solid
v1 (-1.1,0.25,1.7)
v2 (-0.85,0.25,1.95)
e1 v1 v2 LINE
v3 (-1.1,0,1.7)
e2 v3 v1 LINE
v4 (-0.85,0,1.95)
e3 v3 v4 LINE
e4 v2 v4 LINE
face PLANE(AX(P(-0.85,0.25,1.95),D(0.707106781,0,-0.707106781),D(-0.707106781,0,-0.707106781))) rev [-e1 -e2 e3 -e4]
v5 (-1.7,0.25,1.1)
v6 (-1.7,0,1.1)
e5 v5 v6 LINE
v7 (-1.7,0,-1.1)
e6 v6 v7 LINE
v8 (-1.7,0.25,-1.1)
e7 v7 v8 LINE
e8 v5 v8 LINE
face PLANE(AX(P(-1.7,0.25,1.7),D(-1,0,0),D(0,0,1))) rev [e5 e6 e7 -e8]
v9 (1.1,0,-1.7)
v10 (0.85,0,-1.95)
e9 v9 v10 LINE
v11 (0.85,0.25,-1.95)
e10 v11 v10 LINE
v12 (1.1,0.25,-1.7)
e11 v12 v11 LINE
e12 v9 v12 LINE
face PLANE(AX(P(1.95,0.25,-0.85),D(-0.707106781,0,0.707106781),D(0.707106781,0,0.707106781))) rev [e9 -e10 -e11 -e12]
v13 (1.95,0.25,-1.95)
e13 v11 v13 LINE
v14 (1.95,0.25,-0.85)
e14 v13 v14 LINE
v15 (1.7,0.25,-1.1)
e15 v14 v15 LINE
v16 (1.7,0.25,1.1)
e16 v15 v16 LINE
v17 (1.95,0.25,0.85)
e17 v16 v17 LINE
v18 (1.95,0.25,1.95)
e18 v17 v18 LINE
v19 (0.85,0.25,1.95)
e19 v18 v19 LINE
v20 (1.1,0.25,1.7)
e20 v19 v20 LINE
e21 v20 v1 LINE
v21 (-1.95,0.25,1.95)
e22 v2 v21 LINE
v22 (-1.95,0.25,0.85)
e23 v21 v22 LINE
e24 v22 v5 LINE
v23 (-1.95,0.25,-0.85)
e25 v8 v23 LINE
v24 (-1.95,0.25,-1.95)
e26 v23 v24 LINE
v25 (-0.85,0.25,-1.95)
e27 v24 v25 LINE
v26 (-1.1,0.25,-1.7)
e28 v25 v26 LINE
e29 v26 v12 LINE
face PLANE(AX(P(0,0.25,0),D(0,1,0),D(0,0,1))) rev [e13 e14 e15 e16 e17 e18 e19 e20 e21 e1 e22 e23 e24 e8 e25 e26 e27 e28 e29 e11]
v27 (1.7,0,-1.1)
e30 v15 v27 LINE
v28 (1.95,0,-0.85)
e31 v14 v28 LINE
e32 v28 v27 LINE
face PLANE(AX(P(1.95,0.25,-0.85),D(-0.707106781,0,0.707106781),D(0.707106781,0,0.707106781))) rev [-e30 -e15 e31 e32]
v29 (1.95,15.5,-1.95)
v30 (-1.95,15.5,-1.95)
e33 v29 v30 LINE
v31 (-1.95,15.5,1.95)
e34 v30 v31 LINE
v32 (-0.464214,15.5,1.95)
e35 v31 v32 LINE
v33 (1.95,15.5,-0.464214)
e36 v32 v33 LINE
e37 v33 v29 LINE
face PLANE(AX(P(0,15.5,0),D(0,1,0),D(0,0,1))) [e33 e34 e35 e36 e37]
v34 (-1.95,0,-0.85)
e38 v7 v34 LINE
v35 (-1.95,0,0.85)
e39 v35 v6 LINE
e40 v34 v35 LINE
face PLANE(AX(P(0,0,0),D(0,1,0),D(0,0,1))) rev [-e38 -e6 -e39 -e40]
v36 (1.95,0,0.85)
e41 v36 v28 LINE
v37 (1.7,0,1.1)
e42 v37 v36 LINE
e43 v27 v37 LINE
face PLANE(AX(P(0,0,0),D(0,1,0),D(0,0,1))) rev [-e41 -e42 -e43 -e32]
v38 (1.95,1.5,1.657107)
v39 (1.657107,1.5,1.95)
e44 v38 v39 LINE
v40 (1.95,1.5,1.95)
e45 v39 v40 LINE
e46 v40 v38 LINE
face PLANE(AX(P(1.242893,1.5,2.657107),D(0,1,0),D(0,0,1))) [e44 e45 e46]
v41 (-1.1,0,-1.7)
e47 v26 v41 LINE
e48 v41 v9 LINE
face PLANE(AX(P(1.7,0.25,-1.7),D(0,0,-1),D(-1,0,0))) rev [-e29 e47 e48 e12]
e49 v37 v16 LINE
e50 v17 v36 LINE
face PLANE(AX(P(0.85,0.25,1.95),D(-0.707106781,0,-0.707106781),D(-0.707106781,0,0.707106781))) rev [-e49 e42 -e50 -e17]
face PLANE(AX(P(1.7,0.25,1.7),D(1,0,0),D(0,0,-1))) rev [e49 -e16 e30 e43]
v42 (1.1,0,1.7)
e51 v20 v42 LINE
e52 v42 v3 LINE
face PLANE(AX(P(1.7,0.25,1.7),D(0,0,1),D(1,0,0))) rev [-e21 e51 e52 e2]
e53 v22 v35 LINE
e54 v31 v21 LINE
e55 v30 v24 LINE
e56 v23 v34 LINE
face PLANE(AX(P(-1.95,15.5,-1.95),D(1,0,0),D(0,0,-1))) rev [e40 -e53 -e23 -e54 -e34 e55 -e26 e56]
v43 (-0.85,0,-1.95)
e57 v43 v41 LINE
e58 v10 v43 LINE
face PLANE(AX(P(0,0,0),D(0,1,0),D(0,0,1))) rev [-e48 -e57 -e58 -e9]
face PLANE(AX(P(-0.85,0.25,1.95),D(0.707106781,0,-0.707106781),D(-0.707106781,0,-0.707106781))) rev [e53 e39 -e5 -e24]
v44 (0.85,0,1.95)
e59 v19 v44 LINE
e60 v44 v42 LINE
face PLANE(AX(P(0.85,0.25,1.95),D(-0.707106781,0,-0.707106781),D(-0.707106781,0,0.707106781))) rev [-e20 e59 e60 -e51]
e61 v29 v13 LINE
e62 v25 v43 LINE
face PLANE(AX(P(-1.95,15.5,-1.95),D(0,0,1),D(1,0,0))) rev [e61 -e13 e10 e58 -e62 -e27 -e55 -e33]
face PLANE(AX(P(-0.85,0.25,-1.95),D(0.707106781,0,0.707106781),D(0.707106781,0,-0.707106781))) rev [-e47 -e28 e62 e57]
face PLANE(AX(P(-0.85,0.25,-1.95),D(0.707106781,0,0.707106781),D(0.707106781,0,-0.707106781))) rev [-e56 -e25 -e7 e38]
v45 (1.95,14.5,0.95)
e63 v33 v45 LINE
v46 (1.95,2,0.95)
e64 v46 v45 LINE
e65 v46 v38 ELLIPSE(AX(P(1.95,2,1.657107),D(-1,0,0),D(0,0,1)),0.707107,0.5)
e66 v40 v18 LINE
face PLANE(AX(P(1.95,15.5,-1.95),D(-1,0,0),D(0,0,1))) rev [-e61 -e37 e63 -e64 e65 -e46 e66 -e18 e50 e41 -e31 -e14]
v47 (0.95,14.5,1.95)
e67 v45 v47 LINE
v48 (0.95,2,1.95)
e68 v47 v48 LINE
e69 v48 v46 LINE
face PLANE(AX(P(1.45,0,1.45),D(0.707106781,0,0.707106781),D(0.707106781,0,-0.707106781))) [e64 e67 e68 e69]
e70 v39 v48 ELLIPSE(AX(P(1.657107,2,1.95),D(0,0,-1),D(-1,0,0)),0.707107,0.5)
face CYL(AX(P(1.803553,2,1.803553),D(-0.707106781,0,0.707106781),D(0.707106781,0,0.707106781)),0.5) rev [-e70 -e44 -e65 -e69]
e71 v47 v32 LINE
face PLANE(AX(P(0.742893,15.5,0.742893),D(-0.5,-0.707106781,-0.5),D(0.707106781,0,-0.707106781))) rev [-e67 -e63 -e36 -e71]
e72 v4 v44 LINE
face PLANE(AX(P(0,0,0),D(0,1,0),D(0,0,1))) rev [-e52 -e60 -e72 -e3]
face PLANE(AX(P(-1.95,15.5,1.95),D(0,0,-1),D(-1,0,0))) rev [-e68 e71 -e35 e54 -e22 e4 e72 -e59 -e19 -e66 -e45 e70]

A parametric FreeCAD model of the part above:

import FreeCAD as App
import Part
import Sketcher
from FreeCAD import Vector
Q = App.Units.Quantity


def edges_at(feature, points):
    """Names of the edges that pass closest to the given points."""
    edges = feature.Shape.Edges
    near = lambda p: min(range(len(edges)), key=lambda i: edges[i].distToShape(Part.Vertex(*p))[0])
    return sorted({f"Edge{near(p) + 1}" for p in points})


def add_polygon(sketch, points):
    """Adds a closed chain of lines whose ends are joined by coincident constraints."""
    first, n = sketch.GeometryCount, len(points)
    for a, b in zip(points, points[1:] + points[:1]):
        sketch.addGeometry(Part.LineSegment(App.Vector(*a, 0), App.Vector(*b, 0)), False)
    for i in range(n):
        sketch.addConstraint(Sketcher.Constraint("Coincident", first + i, 2, first + (i + 1) % n, 1))

doc = App.newDocument("Part")
body = doc.addObject("PartDesign::Body", "Body")

sketch1 = doc.addObject("Sketcher::SketchObject", "Sketch")
body.addObject(sketch1)
sketch1.AttachmentSupport = (doc.XZ_Plane, [""])
sketch1.MapMode = "FlatFace"
add_polygon(sketch1, [(-1.9, -1.9), (-1.9, 1.9), (1.9, 1.9), (1.9, -1.9)])
sketch1.addConstraint([
    Sketcher.Constraint("Vertical", 0),
    Sketcher.Constraint("Horizontal", 1),
    Sketcher.Constraint("Vertical", 2),
    Sketcher.Constraint("Horizontal", 3),
    Sketcher.Constraint("Symmetric", 0, 2, 2, 2, -1, 1),
    Sketcher.Constraint("Equal", 3, 0),
    Sketcher.Constraint("DistanceX", 1, 1, 1, 2, Q("3.9 mm")),
])
pad1 = doc.addObject("PartDesign::Pad", "Pad")
body.addObject(pad1)
pad1.Profile = sketch1
pad1.Length = 15.5
pad1.Reversed = True

sketch2 = doc.addObject("Sketcher::SketchObject", "Sketch001")
body.addObject(sketch2)
sketch2.Placement = App.Placement(Vector(1.45, 0, 1.45), App.Rotation(Vector(0.707106781, 0, -0.707106781), Vector(0, 0.999999999, 0), Vector(0.707106781, 0, 0.707106781), "ZXY"))
add_polygon(sketch2, [(-1, 15.5), (-1, 1.5), (1, 1.5), (1, 15.5)])
sketch2.addConstraint([
    Sketcher.Constraint("Vertical", 0),
    Sketcher.Constraint("Horizontal", 1),
    Sketcher.Constraint("Vertical", 2),
    Sketcher.Constraint("Horizontal", 3),
    Sketcher.Constraint("DistanceX", 1, 1, 1, 2, Q("2 mm")),
    Sketcher.Constraint("DistanceY", 0, 2, 0, 1, Q("14 mm")),
    Sketcher.Constraint("DistanceX", 0, 2, -1, 1, Q("1 mm")),
    Sketcher.Constraint("DistanceY", -1, 1, 0, 2, Q("1.5 mm")),
])
pocket1 = doc.addObject("PartDesign::Pocket", "Pocket")
body.addObject(pocket1)
pocket1.Profile = sketch2
pocket1.Type = "ThroughAll"
pocket1.Reversed = True

sketch3 = doc.addObject("Sketcher::SketchObject", "Sketch002")
body.addObject(sketch3)
sketch3.AttachmentSupport = (doc.XZ_Plane, [""])
sketch3.MapMode = "FlatFace"
add_polygon(sketch3, [(-1.7, 1.7), (-1.7, -1.7), (1.7, -1.7), (1.7, 1.7)])
sketch3.addConstraint([
    Sketcher.Constraint("Vertical", 0),
    Sketcher.Constraint("Horizontal", 1),
    Sketcher.Constraint("Vertical", 2),
    Sketcher.Constraint("Horizontal", 3),
    Sketcher.Constraint("Symmetric", 0, 2, 2, 2, -1, 1),
    Sketcher.Constraint("Equal", 3, 0),
    Sketcher.Constraint("DistanceX", 1, 1, 1, 2, Q("3.4 mm")),
])
pocket2 = doc.addObject("PartDesign::Pocket", "Pocket001")
body.addObject(pocket2)
pocket2.Profile = sketch3
pocket2.Length = 0.25

sketch4 = doc.addObject("Sketcher::SketchObject", "Sketch003")
body.addObject(sketch4)
sketch4.AttachmentSupport = (doc.XZ_Plane, [""])
sketch4.MapMode = "FlatFace"
add_polygon(sketch4, [(1.9, 1.9), (0.8, 1.9), (1.9, 0.8)])
add_polygon(sketch4, [(1.9, -1.9), (1.9, -0.8), (0.8, -1.9)])
add_polygon(sketch4, [(-0.8, 1.9), (-1.9, 1.9), (-1.9, 0.8)])
add_polygon(sketch4, [(-1.9, -1.9), (-0.8, -1.9), (-1.9, -0.8)])
sketch4.addConstraint([
    Sketcher.Constraint("Horizontal", 0),
    Sketcher.Constraint("Vertical", 2),
    Sketcher.Constraint("Vertical", 3),
    Sketcher.Constraint("Horizontal", 5),
    Sketcher.Constraint("Horizontal", 6),
    Sketcher.Constraint("Vertical", 7),
    Sketcher.Constraint("Horizontal", 9),
    Sketcher.Constraint("Vertical", 11),
    Sketcher.Constraint("Symmetric", 5, 2, 6, 2, -1, 1),
    Sketcher.Constraint("Symmetric", 0, 2, 9, 2, -1, 1),
    Sketcher.Constraint("Symmetric", 1, 2, 10, 2, -1, 1),
    Sketcher.Constraint("Symmetric", 2, 2, 6, 2, -2),
    Sketcher.Constraint("Perpendicular", 1, 4),
    Sketcher.Constraint("Parallel", 4, 8),
    Sketcher.Constraint("Horizontal", 1, 2, 7, 2),
    Sketcher.Constraint("Horizontal", 3, 2, 10, 2),
    Sketcher.Constraint("Vertical", 0, 2, 4, 2),
    Sketcher.Constraint("DistanceX", 0, 2, 0, 1, Q("1.1 mm")),
    Sketcher.Constraint("DistanceY", 3, 2, 1, 2, Q("1.7 mm")),
    Sketcher.Constraint("DistanceX", 6, 2, 0, 2, Q("2.8 mm")),
])
pocket3 = doc.addObject("PartDesign::Pocket", "Pocket002")
body.addObject(pocket3)
pocket3.Profile = sketch4
pocket3.Length = 0.25
doc.recompute()

chamfer = doc.addObject("PartDesign::Chamfer", "Chamfer")
body.addObject(chamfer)
chamfer.Base = (pocket3, edges_at(pocket3, [(1.45, 15.5, 1.45)]))
chamfer.Size = 1
doc.recompute()

fillet = doc.addObject("PartDesign::Fillet", "Fillet")
body.addObject(fillet)
fillet.Base = (chamfer, edges_at(chamfer, [(1.45, 1.5, 1.45)]))
fillet.Radius = 0.5

doc.recompute()
